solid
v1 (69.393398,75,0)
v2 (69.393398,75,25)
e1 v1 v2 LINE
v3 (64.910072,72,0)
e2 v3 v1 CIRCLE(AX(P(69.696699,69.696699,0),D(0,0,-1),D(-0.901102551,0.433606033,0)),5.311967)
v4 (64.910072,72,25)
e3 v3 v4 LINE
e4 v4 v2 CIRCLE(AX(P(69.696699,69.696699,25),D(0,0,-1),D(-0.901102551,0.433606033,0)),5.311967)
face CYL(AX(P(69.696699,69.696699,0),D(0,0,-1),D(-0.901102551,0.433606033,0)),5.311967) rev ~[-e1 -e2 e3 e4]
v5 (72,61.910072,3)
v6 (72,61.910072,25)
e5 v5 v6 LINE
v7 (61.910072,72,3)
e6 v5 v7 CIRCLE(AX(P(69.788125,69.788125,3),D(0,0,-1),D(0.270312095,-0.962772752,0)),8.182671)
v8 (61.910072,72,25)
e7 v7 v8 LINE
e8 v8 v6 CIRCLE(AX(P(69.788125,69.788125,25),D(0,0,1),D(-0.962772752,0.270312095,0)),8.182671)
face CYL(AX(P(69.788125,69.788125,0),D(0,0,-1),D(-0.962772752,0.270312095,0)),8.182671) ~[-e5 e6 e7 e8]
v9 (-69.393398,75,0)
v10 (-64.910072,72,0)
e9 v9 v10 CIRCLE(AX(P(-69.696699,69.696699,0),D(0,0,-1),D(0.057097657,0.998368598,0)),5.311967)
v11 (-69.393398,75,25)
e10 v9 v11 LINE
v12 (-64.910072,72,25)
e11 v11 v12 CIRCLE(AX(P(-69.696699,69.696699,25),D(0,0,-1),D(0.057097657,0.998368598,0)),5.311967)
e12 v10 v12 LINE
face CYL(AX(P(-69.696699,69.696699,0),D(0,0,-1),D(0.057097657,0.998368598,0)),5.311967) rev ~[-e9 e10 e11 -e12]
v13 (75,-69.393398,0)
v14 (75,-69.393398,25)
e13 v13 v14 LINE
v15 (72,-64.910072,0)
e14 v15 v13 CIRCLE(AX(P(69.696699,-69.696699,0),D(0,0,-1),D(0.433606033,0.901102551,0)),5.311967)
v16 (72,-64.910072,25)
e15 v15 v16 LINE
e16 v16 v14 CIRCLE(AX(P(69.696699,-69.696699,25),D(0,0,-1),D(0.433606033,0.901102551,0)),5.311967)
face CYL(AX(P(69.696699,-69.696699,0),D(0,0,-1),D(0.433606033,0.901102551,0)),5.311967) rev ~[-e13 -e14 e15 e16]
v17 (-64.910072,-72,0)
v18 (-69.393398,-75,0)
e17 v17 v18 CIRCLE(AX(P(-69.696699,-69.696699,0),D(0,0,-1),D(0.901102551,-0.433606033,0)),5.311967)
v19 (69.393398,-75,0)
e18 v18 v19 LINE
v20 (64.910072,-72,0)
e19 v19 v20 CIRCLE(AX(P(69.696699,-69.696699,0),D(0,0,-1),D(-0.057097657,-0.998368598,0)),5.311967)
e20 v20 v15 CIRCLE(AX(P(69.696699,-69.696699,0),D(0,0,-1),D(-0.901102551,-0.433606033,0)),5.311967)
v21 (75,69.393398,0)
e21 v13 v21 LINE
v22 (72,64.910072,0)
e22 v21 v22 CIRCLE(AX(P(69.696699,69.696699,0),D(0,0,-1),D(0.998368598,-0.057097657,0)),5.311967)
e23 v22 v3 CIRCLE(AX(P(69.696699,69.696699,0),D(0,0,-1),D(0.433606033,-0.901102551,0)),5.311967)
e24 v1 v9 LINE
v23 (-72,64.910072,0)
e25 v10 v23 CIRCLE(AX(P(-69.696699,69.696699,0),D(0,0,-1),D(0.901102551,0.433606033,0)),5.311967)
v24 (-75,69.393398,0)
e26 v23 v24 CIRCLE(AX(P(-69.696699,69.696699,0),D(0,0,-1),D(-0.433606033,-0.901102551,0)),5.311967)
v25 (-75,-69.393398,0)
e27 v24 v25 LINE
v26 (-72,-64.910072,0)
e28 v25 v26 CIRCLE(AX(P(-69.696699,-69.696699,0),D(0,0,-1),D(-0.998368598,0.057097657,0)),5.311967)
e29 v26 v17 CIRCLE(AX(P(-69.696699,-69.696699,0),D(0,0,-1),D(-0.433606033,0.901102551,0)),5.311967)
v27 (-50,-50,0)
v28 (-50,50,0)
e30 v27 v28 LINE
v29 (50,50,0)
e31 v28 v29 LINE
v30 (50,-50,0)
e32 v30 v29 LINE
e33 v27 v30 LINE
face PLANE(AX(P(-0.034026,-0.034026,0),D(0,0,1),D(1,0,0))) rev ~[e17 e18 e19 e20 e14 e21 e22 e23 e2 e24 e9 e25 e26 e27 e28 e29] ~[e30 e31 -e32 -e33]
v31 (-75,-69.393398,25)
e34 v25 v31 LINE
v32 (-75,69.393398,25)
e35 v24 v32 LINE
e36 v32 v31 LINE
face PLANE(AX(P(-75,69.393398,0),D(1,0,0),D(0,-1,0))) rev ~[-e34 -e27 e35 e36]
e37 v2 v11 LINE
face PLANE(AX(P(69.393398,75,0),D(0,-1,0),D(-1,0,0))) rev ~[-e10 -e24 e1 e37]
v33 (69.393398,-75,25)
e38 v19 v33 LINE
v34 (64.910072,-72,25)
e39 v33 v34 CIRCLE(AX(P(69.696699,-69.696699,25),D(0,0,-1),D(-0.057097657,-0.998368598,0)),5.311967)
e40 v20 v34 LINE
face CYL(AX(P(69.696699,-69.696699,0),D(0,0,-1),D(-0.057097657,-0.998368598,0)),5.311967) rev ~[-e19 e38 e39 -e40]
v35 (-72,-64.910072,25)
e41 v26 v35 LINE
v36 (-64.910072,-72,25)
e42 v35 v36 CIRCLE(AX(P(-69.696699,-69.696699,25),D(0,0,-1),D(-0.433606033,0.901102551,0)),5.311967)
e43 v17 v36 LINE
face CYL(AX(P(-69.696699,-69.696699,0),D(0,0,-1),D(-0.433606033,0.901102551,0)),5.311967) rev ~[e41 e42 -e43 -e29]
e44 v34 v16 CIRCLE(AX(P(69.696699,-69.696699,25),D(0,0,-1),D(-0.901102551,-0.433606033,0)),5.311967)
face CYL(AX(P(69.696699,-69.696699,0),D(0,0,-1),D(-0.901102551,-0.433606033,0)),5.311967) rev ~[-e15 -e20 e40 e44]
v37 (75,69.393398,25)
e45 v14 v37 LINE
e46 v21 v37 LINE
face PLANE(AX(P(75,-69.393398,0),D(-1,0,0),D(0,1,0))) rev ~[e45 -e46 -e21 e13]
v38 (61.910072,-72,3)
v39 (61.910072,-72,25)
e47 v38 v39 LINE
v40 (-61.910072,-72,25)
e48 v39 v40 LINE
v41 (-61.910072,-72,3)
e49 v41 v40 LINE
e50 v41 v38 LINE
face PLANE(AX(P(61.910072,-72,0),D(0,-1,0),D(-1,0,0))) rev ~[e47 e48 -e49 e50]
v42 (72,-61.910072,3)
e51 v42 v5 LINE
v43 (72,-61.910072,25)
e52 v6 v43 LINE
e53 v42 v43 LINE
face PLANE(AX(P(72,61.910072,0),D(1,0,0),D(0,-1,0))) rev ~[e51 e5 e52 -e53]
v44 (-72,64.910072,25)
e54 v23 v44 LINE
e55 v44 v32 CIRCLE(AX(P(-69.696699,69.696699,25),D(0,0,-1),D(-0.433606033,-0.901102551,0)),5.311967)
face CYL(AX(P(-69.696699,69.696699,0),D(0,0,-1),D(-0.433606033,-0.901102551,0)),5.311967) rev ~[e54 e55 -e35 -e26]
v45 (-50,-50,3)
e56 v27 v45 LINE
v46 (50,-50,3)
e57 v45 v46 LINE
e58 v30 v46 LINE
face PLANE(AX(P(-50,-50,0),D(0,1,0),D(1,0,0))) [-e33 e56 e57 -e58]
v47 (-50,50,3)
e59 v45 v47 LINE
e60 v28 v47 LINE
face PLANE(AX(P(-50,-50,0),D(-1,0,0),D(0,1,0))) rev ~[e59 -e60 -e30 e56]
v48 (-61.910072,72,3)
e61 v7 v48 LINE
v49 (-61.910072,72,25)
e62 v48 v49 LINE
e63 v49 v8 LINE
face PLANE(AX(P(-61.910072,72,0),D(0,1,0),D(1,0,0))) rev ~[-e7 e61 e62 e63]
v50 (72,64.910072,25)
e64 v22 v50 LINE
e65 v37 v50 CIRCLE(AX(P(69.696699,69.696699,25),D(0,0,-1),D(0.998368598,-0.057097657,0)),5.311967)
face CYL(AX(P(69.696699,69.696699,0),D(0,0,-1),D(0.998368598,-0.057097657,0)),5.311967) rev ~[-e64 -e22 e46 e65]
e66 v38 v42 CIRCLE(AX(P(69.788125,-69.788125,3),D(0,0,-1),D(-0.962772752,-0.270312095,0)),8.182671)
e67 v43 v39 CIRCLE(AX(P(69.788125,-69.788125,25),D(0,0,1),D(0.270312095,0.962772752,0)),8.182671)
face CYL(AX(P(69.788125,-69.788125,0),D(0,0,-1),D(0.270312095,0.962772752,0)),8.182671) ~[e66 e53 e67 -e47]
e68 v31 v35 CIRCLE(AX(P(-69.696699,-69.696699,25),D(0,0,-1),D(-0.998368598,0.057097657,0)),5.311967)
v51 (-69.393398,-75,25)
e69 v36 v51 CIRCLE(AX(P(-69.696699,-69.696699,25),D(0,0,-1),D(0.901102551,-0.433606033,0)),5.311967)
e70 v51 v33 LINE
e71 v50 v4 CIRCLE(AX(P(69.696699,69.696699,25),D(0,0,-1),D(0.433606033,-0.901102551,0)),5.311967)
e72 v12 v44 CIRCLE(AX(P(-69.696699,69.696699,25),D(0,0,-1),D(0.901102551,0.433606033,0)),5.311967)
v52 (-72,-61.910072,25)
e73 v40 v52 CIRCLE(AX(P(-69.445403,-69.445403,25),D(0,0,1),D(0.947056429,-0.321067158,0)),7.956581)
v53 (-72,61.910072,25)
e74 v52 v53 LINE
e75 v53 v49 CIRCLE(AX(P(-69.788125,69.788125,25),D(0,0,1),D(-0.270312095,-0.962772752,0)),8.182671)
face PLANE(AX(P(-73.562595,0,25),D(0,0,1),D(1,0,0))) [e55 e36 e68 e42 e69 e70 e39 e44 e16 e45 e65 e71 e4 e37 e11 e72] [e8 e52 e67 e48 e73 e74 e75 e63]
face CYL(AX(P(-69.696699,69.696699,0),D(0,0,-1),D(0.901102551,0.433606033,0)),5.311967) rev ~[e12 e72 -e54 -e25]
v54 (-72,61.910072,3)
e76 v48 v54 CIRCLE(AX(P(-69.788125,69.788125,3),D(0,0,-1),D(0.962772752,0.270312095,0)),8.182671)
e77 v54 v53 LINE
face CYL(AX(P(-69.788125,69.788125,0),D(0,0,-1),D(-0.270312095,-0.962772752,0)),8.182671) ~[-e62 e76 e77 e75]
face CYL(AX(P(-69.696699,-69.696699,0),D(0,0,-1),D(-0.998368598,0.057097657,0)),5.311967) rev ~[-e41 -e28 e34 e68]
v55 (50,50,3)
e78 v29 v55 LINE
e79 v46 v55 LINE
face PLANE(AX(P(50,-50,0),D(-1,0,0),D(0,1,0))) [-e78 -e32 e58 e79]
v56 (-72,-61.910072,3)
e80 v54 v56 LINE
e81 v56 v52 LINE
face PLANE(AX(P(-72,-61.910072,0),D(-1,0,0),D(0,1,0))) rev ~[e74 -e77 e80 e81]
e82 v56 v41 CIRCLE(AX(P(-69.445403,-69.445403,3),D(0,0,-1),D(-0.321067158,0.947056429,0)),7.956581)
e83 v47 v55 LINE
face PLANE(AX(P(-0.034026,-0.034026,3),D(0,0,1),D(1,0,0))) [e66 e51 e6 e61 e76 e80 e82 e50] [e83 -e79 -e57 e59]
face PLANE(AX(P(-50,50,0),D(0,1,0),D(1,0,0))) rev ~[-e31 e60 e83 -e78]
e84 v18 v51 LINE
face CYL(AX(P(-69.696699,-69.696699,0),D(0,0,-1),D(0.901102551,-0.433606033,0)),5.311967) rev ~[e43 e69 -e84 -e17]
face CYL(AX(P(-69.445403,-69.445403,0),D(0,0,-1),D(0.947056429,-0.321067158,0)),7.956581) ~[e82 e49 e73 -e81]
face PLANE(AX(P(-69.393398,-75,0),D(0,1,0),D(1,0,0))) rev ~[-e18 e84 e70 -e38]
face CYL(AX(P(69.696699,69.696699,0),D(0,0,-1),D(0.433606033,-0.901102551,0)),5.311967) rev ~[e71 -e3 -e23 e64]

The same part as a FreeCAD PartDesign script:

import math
import FreeCAD as App
import Part
import Sketcher

doc = App.newDocument("Part")
body = doc.addObject("PartDesign::Body", "Body")

# Sketch on XY plane
sketch1 = body.newObject("Sketcher::SketchObject", "Sketch")
sketch1.AttachmentSupport = (doc.getObject("XY_Plane"), [""])
sketch1.MapMode = "FlatFace"
sketch1.addGeometry(Part.ArcOfCircle(Part.Circle(App.Vector(-69.696699, 69.696699, 0), App.Vector(0, 0, 1), 5.311967), math.radians(-176.726765), math.radians(-115.696627)), False)
sketch1.addGeometry(Part.LineSegment(App.Vector(-75, 69.393398, 0), App.Vector(-75, -69.393398, 0)), False)
sketch1.addGeometry(Part.ArcOfCircle(Part.Circle(App.Vector(-69.696699, -69.696699, 0), App.Vector(0, 0, 1), 5.311967), math.radians(115.696627), math.radians(176.726765)), False)
sketch1.addGeometry(Part.ArcOfCircle(Part.Circle(App.Vector(-69.696699, -69.696699, 0), App.Vector(0, 0, 1), 5.311967), math.radians(-25.696627), math.radians(115.696627)), False)
sketch1.addGeometry(Part.ArcOfCircle(Part.Circle(App.Vector(-69.696699, -69.696699, 0), App.Vector(0, 0, 1), 5.311967), math.radians(-86.726765), math.radians(-25.696627)), False)
sketch1.addGeometry(Part.LineSegment(App.Vector(-69.393398, -75, 0), App.Vector(69.393398, -75, 0)), False)
sketch1.addGeometry(Part.ArcOfCircle(Part.Circle(App.Vector(69.696699, -69.696699, 0), App.Vector(0, 0, 1), 5.311967), math.radians(-154.303373), math.radians(-93.273235)), False)
sketch1.addGeometry(Part.ArcOfCircle(Part.Circle(App.Vector(69.696699, -69.696699, 0), App.Vector(0, 0, 1), 5.311967), math.radians(64.303373), math.radians(205.696627)), False)
sketch1.addGeometry(Part.ArcOfCircle(Part.Circle(App.Vector(69.696699, -69.696699, 0), App.Vector(0, 0, 1), 5.311967), math.radians(3.273235), math.radians(64.303373)), False)
sketch1.addGeometry(Part.LineSegment(App.Vector(75, -69.393398, 0), App.Vector(75, 69.393398, 0)), False)
sketch1.addGeometry(Part.ArcOfCircle(Part.Circle(App.Vector(69.696699, 69.696699, 0), App.Vector(0, 0, 1), 5.311967), math.radians(-64.303373), math.radians(-3.273235)), False)
sketch1.addGeometry(Part.ArcOfCircle(Part.Circle(App.Vector(69.696699, 69.696699, 0), App.Vector(0, 0, 1), 5.311967), math.radians(154.303373), math.radians(295.696627)), False)
sketch1.addGeometry(Part.ArcOfCircle(Part.Circle(App.Vector(69.696699, 69.696699, 0), App.Vector(0, 0, 1), 5.311967), math.radians(93.273235), math.radians(154.303373)), False)
sketch1.addGeometry(Part.LineSegment(App.Vector(69.393398, 75, 0), App.Vector(-69.393398, 75, 0)), False)
sketch1.addGeometry(Part.ArcOfCircle(Part.Circle(App.Vector(-69.696699, 69.696699, 0), App.Vector(0, 0, 1), 5.311967), math.radians(25.696627), math.radians(86.726765)), False)
sketch1.addGeometry(Part.ArcOfCircle(Part.Circle(App.Vector(-69.696699, 69.696699, 0), App.Vector(0, 0, 1), 5.311967), math.radians(-115.696627), math.radians(25.696627)), False)
sketch1.addGeometry(Part.LineSegment(App.Vector(-72, -61.910072, 0), App.Vector(-72, 61.910072, 0)), False)
sketch1.addGeometry(Part.ArcOfCircle(Part.Circle(App.Vector(-69.788125, 69.788125, 0), App.Vector(0, 0, 1), 8.182671), math.radians(-105.682839), math.radians(15.682839)), False)
sketch1.addGeometry(Part.LineSegment(App.Vector(-61.910072, 72, 0), App.Vector(61.910072, 72, 0)), False)
sketch1.addGeometry(Part.ArcOfCircle(Part.Circle(App.Vector(69.788125, 69.788125, 0), App.Vector(0, 0, 1), 8.182671), math.radians(164.317161), math.radians(285.682839)), False)
sketch1.addGeometry(Part.LineSegment(App.Vector(72, 61.910072, 0), App.Vector(72, -61.910072, 0)), False)
sketch1.addGeometry(Part.ArcOfCircle(Part.Circle(App.Vector(69.788125, -69.788125, 0), App.Vector(0, 0, 1), 8.182671), math.radians(74.317161), math.radians(195.682839)), False)
sketch1.addGeometry(Part.LineSegment(App.Vector(61.910072, -72, 0), App.Vector(-61.910072, -72, 0)), False)
sketch1.addGeometry(Part.ArcOfCircle(Part.Circle(App.Vector(-69.445403, -69.445403, 0), App.Vector(0, 0, 1), 7.956581), math.radians(-18.727474), math.radians(108.727474)), False)
sketch1.addConstraint(Sketcher.Constraint("Coincident", 0, 1, 1, 1))
sketch1.addConstraint(Sketcher.Constraint("Coincident", 1, 2, 2, 2))
sketch1.addConstraint(Sketcher.Constraint("Tangent", 2, 1, 3, 2))
sketch1.addConstraint(Sketcher.Constraint("Tangent", 3, 1, 4, 2))
sketch1.addConstraint(Sketcher.Constraint("Coincident", 4, 1, 5, 1))
sketch1.addConstraint(Sketcher.Constraint("Coincident", 5, 2, 6, 2))
sketch1.addConstraint(Sketcher.Constraint("Tangent", 6, 1, 7, 2))
sketch1.addConstraint(Sketcher.Constraint("Tangent", 7, 1, 8, 2))
sketch1.addConstraint(Sketcher.Constraint("Coincident", 8, 1, 9, 1))
sketch1.addConstraint(Sketcher.Constraint("Coincident", 9, 2, 10, 2))
sketch1.addConstraint(Sketcher.Constraint("Tangent", 10, 1, 11, 2))
sketch1.addConstraint(Sketcher.Constraint("Tangent", 11, 1, 12, 2))
sketch1.addConstraint(Sketcher.Constraint("Coincident", 12, 1, 13, 1))
sketch1.addConstraint(Sketcher.Constraint("Coincident", 13, 2, 14, 2))
sketch1.addConstraint(Sketcher.Constraint("Tangent", 14, 1, 15, 2))
sketch1.addConstraint(Sketcher.Constraint("Tangent", 15, 1, 0, 2))
sketch1.addConstraint(Sketcher.Constraint("Coincident", 16, 2, 17, 1))
sketch1.addConstraint(Sketcher.Constraint("Coincident", 17, 2, 18, 1))
sketch1.addConstraint(Sketcher.Constraint("Coincident", 18, 2, 19, 1))
sketch1.addConstraint(Sketcher.Constraint("Coincident", 19, 2, 20, 1))
sketch1.addConstraint(Sketcher.Constraint("Coincident", 20, 2, 21, 1))
sketch1.addConstraint(Sketcher.Constraint("Coincident", 21, 2, 22, 1))
sketch1.addConstraint(Sketcher.Constraint("Coincident", 22, 2, 23, 1))
sketch1.addConstraint(Sketcher.Constraint("Coincident", 23, 2, 16, 1))
sketch1.addConstraint(Sketcher.Constraint("Vertical", 1))
sketch1.addConstraint(Sketcher.Constraint("Horizontal", 5))
sketch1.addConstraint(Sketcher.Constraint("Vertical", 9))
sketch1.addConstraint(Sketcher.Constraint("Horizontal", 13))
sketch1.addConstraint(Sketcher.Constraint("Vertical", 16))
sketch1.addConstraint(Sketcher.Constraint("Horizontal", 18))
sketch1.addConstraint(Sketcher.Constraint("Vertical", 20))
sketch1.addConstraint(Sketcher.Constraint("Horizontal", 22))
sketch1.addConstraint(Sketcher.Constraint("Coincident", 4, 3, 2, 3))
sketch1.addConstraint(Sketcher.Constraint("Coincident", 8, 3, 6, 3))
sketch1.addConstraint(Sketcher.Constraint("Coincident", 12, 3, 10, 3))
sketch1.addConstraint(Sketcher.Constraint("Coincident", 14, 3, 0, 3))
sketch1.addConstraint(Sketcher.Constraint("Equal", 0, 2))
sketch1.addConstraint(Sketcher.Constraint("Equal", 4, 6))
sketch1.addConstraint(Sketcher.Constraint("Equal", 8, 10))
sketch1.addConstraint(Sketcher.Constraint("Equal", 17, 19))
sketch1.addConstraint(Sketcher.Constraint("Equal", 19, 21))
sketch1.addConstraint(Sketcher.Constraint("Symmetric", 0, 3, 6, 3, -1, 1))
sketch1.addConstraint(Sketcher.Constraint("Symmetric", 2, 3, 10, 3, -1, 1))
sketch1.addConstraint(Sketcher.Constraint("Symmetric", 17, 3, 21, 3, -1, 1))
sketch1.addConstraint(Sketcher.Constraint("Symmetric", 18, 2, 22, 2, -1, 1))
sketch1.addConstraint(Sketcher.Constraint("Symmetric", 19, 2, 23, 2, -1, 1))
sketch1.addConstraint(Sketcher.Constraint("Symmetric", 2, 3, 6, 3, -2))
sketch1.addConstraint(Sketcher.Constraint("Symmetric", 17, 3, 19, 3, -2))
sketch1.addConstraint(Sketcher.Constraint("Horizontal", 3, 1, 6, 1))
sketch1.addConstraint(Sketcher.Constraint("Horizontal", 2, 1, 7, 1))
sketch1.addConstraint(Sketcher.Constraint("Horizontal", 1, 2, 8, 1))
sketch1.addConstraint(Sketcher.Constraint("Horizontal", 11, 1, 14, 1))
sketch1.addConstraint(Sketcher.Constraint("Horizontal", 10, 1, 15, 1))
sketch1.addConstraint(Sketcher.Constraint("Horizontal", 14, 1, 17, 2))
sketch1.addConstraint(Sketcher.Constraint("Horizontal", 6, 1, 21, 2))
sketch1.addConstraint(Sketcher.Constraint("Vertical", 7, 1, 10, 1))
sketch1.addConstraint(Sketcher.Constraint("Vertical", 5, 2, 12, 1))
sketch1.addConstraint(Sketcher.Constraint("Vertical", 15, 1, 16, 2))
sketch1.addConstraint(Sketcher.Constraint("Equal", 13, 1))
sketch1.addConstraint(Sketcher.Constraint("Equal", 22, 16))
sketch1.addConstraint(Sketcher.Constraint("DistanceX", 0, 1, -1, 1, 75.0))
sketch1.addConstraint(Sketcher.Constraint("DistanceX", 2, 1, -1, 1, 72.0))
sketch1.addConstraint(Sketcher.Constraint("DistanceY", 3, 1, -1, 1, 72.0))
sketch1.addConstraint(Sketcher.Constraint("DistanceY", 4, 1, -1, 1, 75.0))
sketch1.addConstraint(Sketcher.Constraint("DistanceY", 16, 2, 15, 1, 3.0))
sketch1.addConstraint(Sketcher.Constraint("Radius", 17, 8.182671))
sketch1.addConstraint(Sketcher.Constraint("Radius", 23, 7.956581))
sketch1.addConstraint(Sketcher.Constraint("Radius", 0, 5.311967))
sketch1.addConstraint(Sketcher.Constraint("DistanceX", 0, 3, -1, 1, 69.696699))
pad1 = body.newObject("PartDesign::Pad", "Pad")
pad1.Profile = sketch1
pad1.Length = 25

# Sketch on XY plane
sketch2 = body.newObject("Sketcher::SketchObject", "Sketch001")
sketch2.AttachmentSupport = (doc.getObject("XY_Plane"), [""])
sketch2.MapMode = "FlatFace"
sketch2.addGeometry(Part.LineSegment(App.Vector(62, 72, 0), App.Vector(-62, 72, 0)), False)
sketch2.addGeometry(Part.ArcOfCircle(Part.Circle(App.Vector(-70, 70, 0), App.Vector(0, 0, 1), 8), math.radians(-106), math.radians(16)), False)
sketch2.addGeometry(Part.LineSegment(App.Vector(-72, 62, 0), App.Vector(-72, -62, 0)), False)
sketch2.addGeometry(Part.ArcOfCircle(Part.Circle(App.Vector(-69, -69, 0), App.Vector(0, 0, 1), 8), math.radians(-19), math.radians(109)), False)
sketch2.addGeometry(Part.LineSegment(App.Vector(-62, -72, 0), App.Vector(62, -72, 0)), False)
sketch2.addGeometry(Part.ArcOfCircle(Part.Circle(App.Vector(70, -70, 0), App.Vector(0, 0, 1), 8), math.radians(74), math.radians(196)), False)
sketch2.addGeometry(Part.LineSegment(App.Vector(72, -62, 0), App.Vector(72, 62, 0)), False)
sketch2.addGeometry(Part.ArcOfCircle(Part.Circle(App.Vector(70, 70, 0), App.Vector(0, 0, 1), 8), math.radians(164), math.radians(286)), False)
sketch2.addGeometry(Part.LineSegment(App.Vector(50, -50, 0), App.Vector(-50, -50, 0)), False)
sketch2.addGeometry(Part.LineSegment(App.Vector(-50, -50, 0), App.Vector(-50, 50, 0)), False)
sketch2.addGeometry(Part.LineSegment(App.Vector(-50, 50, 0), App.Vector(50, 50, 0)), False)
sketch2.addGeometry(Part.LineSegment(App.Vector(50, 50, 0), App.Vector(50, -50, 0)), False)
sketch2.addConstraint(Sketcher.Constraint("Coincident", 0, 2, 1, 2))
sketch2.addConstraint(Sketcher.Constraint("Coincident", 1, 1, 2, 1))
sketch2.addConstraint(Sketcher.Constraint("Coincident", 2, 2, 3, 2))
sketch2.addConstraint(Sketcher.Constraint("Coincident", 3, 1, 4, 1))
sketch2.addConstraint(Sketcher.Constraint("Coincident", 4, 2, 5, 2))
sketch2.addConstraint(Sketcher.Constraint("Coincident", 5, 1, 6, 1))
sketch2.addConstraint(Sketcher.Constraint("Coincident", 6, 2, 7, 2))
sketch2.addConstraint(Sketcher.Constraint("Coincident", 7, 1, 0, 1))
sketch2.addConstraint(Sketcher.Constraint("Coincident", 8, 2, 9, 1))
sketch2.addConstraint(Sketcher.Constraint("Coincident", 9, 2, 10, 1))
sketch2.addConstraint(Sketcher.Constraint("Coincident", 10, 2, 11, 1))
sketch2.addConstraint(Sketcher.Constraint("Coincident", 11, 2, 8, 1))
sketch2.addConstraint(Sketcher.Constraint("Horizontal", 0))
sketch2.addConstraint(Sketcher.Constraint("Vertical", 2))
sketch2.addConstraint(Sketcher.Constraint("Horizontal", 4))
sketch2.addConstraint(Sketcher.Constraint("Vertical", 6))
sketch2.addConstraint(Sketcher.Constraint("Horizontal", 8))
sketch2.addConstraint(Sketcher.Constraint("Vertical", 9))
sketch2.addConstraint(Sketcher.Constraint("Horizontal", 10))
sketch2.addConstraint(Sketcher.Constraint("Vertical", 11))
sketch2.addConstraint(Sketcher.Constraint("Equal", 1, 5))
sketch2.addConstraint(Sketcher.Constraint("Equal", 5, 7))
sketch2.addConstraint(Sketcher.Constraint("Symmetric", 1, 3, 5, 3, -1, 1))
sketch2.addConstraint(Sketcher.Constraint("Symmetric", 2, 2, 6, 2, -1, 1))
sketch2.addConstraint(Sketcher.Constraint("Symmetric", 3, 1, 7, 1, -1, 1))
sketch2.addConstraint(Sketcher.Constraint("Symmetric", 8, 2, 10, 2, -1, 1))
sketch2.addConstraint(Sketcher.Constraint("Symmetric", 1, 3, 7, 3, -2))
sketch2.addConstraint(Sketcher.Constraint("Equal", 4, 2))
sketch2.addConstraint(Sketcher.Constraint("Equal", 10, 9))
sketch2.addConstraint(Sketcher.Constraint("DistanceX", 8, 2, 8, 1, 100.0))
sketch2.addConstraint(Sketcher.Constraint("DistanceY", -1, 1, 0, 2, 72.0))
sketch2.addConstraint(Sketcher.Constraint("DistanceX", 1, 1, -1, 1, 72.0))
sketch2.addConstraint(Sketcher.Constraint("Radius", 1, 8.182671))
sketch2.addConstraint(Sketcher.Constraint("Radius", 3, 7.956581))
sketch2.addConstraint(Sketcher.Constraint("DistanceX", 0, 2, 0, 1, 123.820145))
pad2 = body.newObject("PartDesign::Pad", "Pad001")
pad2.Profile = sketch2
pad2.Length = 3

doc.recompute()
